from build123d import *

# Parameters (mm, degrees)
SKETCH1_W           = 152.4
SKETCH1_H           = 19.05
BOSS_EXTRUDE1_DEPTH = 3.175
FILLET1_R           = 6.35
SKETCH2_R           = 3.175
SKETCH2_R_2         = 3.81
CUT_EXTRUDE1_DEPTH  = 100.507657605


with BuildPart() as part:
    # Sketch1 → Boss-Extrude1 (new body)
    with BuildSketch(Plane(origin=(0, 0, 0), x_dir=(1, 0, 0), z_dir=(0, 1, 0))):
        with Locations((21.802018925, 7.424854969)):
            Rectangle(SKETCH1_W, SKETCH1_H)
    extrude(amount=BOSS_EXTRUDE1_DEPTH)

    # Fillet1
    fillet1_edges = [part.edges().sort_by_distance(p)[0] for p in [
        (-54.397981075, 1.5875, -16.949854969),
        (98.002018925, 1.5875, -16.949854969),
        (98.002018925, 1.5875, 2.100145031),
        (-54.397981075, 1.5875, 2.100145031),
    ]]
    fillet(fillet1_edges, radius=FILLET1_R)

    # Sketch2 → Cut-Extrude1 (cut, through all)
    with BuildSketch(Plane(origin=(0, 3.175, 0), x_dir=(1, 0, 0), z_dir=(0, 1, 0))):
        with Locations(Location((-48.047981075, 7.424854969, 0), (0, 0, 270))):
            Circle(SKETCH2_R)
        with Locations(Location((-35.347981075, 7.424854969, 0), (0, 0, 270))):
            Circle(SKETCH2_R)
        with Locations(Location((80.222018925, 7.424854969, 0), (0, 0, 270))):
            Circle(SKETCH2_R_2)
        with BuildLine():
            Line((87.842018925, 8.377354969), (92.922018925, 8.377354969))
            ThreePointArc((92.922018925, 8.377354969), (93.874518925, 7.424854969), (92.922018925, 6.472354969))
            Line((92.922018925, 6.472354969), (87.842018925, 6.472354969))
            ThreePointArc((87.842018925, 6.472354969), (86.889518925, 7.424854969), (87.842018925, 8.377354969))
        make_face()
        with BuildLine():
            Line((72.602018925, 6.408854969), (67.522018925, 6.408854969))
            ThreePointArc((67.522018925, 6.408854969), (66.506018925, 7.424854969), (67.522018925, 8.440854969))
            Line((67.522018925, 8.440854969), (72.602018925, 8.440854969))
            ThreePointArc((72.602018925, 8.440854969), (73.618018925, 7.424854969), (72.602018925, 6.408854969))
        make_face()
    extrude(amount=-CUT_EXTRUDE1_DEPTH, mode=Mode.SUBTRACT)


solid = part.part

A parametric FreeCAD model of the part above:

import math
import FreeCAD as App
import Part
import Sketcher
Q = App.Units.Quantity


def edges_at(feature, points):
    """Names of the edges that pass closest to the given points."""
    edges = feature.Shape.Edges
    near = lambda p: min(range(len(edges)), key=lambda i: edges[i].distToShape(Part.Vertex(*p))[0])
    return sorted({f"Edge{near(p) + 1}" for p in points})

doc = App.newDocument("Part")
params = doc.addObject("Spreadsheet::Sheet", "Params")
for row, (alias, value) in enumerate([
    ("sketch1_width", "6 in"),
    ("sketch1_height", "0.75 in"),
    ("pad1_length", "0.125 in"),
    ("fillet_radius", "0.25 in"),
    ("sketch2_diameter", "0.3 in"),
    ("sketch2_diameter2", "0.25 in"),
    ("sketch2_radius", "0.04 in"),
    ("sketch2_width", "0.2 in"),
], start=1):
    params.set(f"A{row}", alias)
    params.set(f"B{row}", "=" + value)
    params.setAlias(f"B{row}", alias)

body = doc.addObject("PartDesign::Body", "Body")

sketch1 = body.newObject("Sketcher::SketchObject", "Sketch")
sketch1.AttachmentSupport = (doc.getObject("XZ_Plane"), [""])
sketch1.MapMode = "FlatFace"
sketch1.addGeometry([
    Part.LineSegment(App.Vector(-54, -17, 0), App.Vector(-54, 2, 0)),
    Part.LineSegment(App.Vector(-54, 2, 0), App.Vector(98, 2, 0)),
    Part.LineSegment(App.Vector(98, 2, 0), App.Vector(98, -17, 0)),
    Part.LineSegment(App.Vector(98, -17, 0), App.Vector(-54, -17, 0)),
], False)
sketch1.addConstraint([
    Sketcher.Constraint("Coincident", 0, 2, 1, 1),
    Sketcher.Constraint("Coincident", 1, 2, 2, 1),
    Sketcher.Constraint("Coincident", 2, 2, 3, 1),
    Sketcher.Constraint("Coincident", 3, 2, 0, 1),
    Sketcher.Constraint("Vertical", 0),
    Sketcher.Constraint("Horizontal", 1),
    Sketcher.Constraint("Vertical", 2),
    Sketcher.Constraint("Horizontal", 3),
    Sketcher.Constraint("DistanceX", 1, 1, 1, 2, Q("6 in")),
    Sketcher.Constraint("DistanceY", 0, 1, 0, 2, Q("0.75 in")),
    Sketcher.Constraint("DistanceX", 0, 2, -1, 1, 54.397981),
    Sketcher.Constraint("DistanceY", -1, 1, 0, 2, 2.100145),
])
sketch1.setExpression("Constraints[8]", "Params.sketch1_width")
sketch1.setExpression("Constraints[9]", "Params.sketch1_height")
pad1 = body.newObject("PartDesign::Pad", "Pad")
pad1.Profile = sketch1
pad1.setExpression("Length", "Params.pad1_length")
pad1.Reversed = True
doc.recompute()

fillet = body.newObject("PartDesign::Fillet", "Fillet")
fillet.Base = (pad1, edges_at(pad1, [
    (-54.398, 1.587, -16.95),
    (98.002, 1.587, -16.95),
    (98.002, 1.587, 2.1),
    (-54.398, 1.587, 2.1),
]))
fillet.setExpression("Radius", "Params.fillet_radius")

sketch2 = body.newObject("Sketcher::SketchObject", "Sketch001")
sketch2.AttachmentSupport = (doc.getObject("XZ_Plane"), [""])
sketch2.MapMode = "FlatFace"
sketch2.AttachmentOffset = App.Placement(App.Vector(0, 0, -0.125 * 25.4), App.Rotation())
sketch2.addGeometry([
    Part.Circle(App.Vector(-48, -7.4, 0), App.Vector(0, 0, 1), 3.2),
    Part.Circle(App.Vector(-35.3, -7.4, 0), App.Vector(0, 0, 1), 3.2),
    Part.Circle(App.Vector(80.2, -7.4, 0), App.Vector(0, 0, 1), 3.8),
    Part.LineSegment(App.Vector(92.9, -8.4, 0), App.Vector(87.8, -8.4, 0)),
    Part.ArcOfCircle(Part.Circle(App.Vector(87.8, -7.4, 0), App.Vector(0, 0, 1), 1), math.radians(90), math.radians(270)),
    Part.LineSegment(App.Vector(87.8, -6.5, 0), App.Vector(92.9, -6.5, 0)),
    Part.ArcOfCircle(Part.Circle(App.Vector(92.9, -7.4, 0), App.Vector(0, 0, 1), 1), math.radians(-90), math.radians(90)),
    Part.LineSegment(App.Vector(67.5, -6.4, 0), App.Vector(72.6, -6.4, 0)),
    Part.ArcOfCircle(Part.Circle(App.Vector(72.6, -7.4, 0), App.Vector(0, 0, 1), 1), math.radians(-90), math.radians(90)),
    Part.LineSegment(App.Vector(72.6, -8.4, 0), App.Vector(67.5, -8.4, 0)),
    Part.ArcOfCircle(Part.Circle(App.Vector(67.5, -7.4, 0), App.Vector(0, 0, 1), 1), math.radians(90), math.radians(270)),
], False)
sketch2.addConstraint([
    Sketcher.Constraint("Tangent", 3, 2, 4, 2),
    Sketcher.Constraint("Tangent", 4, 1, 5, 1),
    Sketcher.Constraint("Tangent", 5, 2, 6, 2),
    Sketcher.Constraint("Tangent", 6, 1, 3, 1),
    Sketcher.Constraint("Tangent", 7, 2, 8, 2),
    Sketcher.Constraint("Tangent", 8, 1, 9, 1),
    Sketcher.Constraint("Tangent", 9, 2, 10, 2),
    Sketcher.Constraint("Tangent", 10, 1, 7, 1),
    Sketcher.Constraint("Horizontal", 3),
    Sketcher.Constraint("Horizontal", 5),
    Sketcher.Constraint("Horizontal", 7),
    Sketcher.Constraint("Horizontal", 9),
    Sketcher.Constraint("Equal", 0, 1),
    Sketcher.Constraint("Horizontal", 0, 3, 1, 3),
    Sketcher.Constraint("Horizontal", 1, 3, 2, 3),
    Sketcher.Constraint("Horizontal", 2, 3, 4, 3),
    Sketcher.Constraint("Horizontal", 6, 3, 8, 3),
    Sketcher.Constraint("Equal", 5, 7),
    Sketcher.Constraint("Diameter", 2, Q("0.3 in")),
    Sketcher.Constraint("Diameter", 0, Q("0.25 in")),
    Sketcher.Constraint("Radius", 8, Q("0.04 in")),
    Sketcher.Constraint("DistanceX", 3, 2, 3, 1, Q("0.2 in")),
    Sketcher.Constraint("DistanceX", 10, 3, 6, 3, Q("1 in")),
    Sketcher.Constraint("Radius", 4, Q("0.0375 in")),
    Sketcher.Constraint("DistanceX", 0, 3, 1, 3, Q("0.5 in")),
    Sketcher.Constraint("DistanceX", 2, 3, 4, 3, Q("0.3 in")),
    Sketcher.Constraint("DistanceX", 1, 3, 2, 3, Q("4.55 in")),
    Sketcher.Constraint("DistanceX", 0, 3, -1, 1, 48.047981),
    Sketcher.Constraint("DistanceY", 0, 3, -1, 1, 7.424855),
])
sketch2.setExpression("Constraints[18]", "Params.sketch2_diameter")
sketch2.setExpression("Constraints[19]", "Params.sketch2_diameter2")
sketch2.setExpression("Constraints[20]", "Params.sketch2_radius")
sketch2.setExpression("Constraints[21]", "Params.sketch2_width")
pocket1 = body.newObject("PartDesign::Pocket", "Pocket")
pocket1.Profile = sketch2
pocket1.Type = "ThroughAll"
pocket1.Reversed = True

doc.recompute()
